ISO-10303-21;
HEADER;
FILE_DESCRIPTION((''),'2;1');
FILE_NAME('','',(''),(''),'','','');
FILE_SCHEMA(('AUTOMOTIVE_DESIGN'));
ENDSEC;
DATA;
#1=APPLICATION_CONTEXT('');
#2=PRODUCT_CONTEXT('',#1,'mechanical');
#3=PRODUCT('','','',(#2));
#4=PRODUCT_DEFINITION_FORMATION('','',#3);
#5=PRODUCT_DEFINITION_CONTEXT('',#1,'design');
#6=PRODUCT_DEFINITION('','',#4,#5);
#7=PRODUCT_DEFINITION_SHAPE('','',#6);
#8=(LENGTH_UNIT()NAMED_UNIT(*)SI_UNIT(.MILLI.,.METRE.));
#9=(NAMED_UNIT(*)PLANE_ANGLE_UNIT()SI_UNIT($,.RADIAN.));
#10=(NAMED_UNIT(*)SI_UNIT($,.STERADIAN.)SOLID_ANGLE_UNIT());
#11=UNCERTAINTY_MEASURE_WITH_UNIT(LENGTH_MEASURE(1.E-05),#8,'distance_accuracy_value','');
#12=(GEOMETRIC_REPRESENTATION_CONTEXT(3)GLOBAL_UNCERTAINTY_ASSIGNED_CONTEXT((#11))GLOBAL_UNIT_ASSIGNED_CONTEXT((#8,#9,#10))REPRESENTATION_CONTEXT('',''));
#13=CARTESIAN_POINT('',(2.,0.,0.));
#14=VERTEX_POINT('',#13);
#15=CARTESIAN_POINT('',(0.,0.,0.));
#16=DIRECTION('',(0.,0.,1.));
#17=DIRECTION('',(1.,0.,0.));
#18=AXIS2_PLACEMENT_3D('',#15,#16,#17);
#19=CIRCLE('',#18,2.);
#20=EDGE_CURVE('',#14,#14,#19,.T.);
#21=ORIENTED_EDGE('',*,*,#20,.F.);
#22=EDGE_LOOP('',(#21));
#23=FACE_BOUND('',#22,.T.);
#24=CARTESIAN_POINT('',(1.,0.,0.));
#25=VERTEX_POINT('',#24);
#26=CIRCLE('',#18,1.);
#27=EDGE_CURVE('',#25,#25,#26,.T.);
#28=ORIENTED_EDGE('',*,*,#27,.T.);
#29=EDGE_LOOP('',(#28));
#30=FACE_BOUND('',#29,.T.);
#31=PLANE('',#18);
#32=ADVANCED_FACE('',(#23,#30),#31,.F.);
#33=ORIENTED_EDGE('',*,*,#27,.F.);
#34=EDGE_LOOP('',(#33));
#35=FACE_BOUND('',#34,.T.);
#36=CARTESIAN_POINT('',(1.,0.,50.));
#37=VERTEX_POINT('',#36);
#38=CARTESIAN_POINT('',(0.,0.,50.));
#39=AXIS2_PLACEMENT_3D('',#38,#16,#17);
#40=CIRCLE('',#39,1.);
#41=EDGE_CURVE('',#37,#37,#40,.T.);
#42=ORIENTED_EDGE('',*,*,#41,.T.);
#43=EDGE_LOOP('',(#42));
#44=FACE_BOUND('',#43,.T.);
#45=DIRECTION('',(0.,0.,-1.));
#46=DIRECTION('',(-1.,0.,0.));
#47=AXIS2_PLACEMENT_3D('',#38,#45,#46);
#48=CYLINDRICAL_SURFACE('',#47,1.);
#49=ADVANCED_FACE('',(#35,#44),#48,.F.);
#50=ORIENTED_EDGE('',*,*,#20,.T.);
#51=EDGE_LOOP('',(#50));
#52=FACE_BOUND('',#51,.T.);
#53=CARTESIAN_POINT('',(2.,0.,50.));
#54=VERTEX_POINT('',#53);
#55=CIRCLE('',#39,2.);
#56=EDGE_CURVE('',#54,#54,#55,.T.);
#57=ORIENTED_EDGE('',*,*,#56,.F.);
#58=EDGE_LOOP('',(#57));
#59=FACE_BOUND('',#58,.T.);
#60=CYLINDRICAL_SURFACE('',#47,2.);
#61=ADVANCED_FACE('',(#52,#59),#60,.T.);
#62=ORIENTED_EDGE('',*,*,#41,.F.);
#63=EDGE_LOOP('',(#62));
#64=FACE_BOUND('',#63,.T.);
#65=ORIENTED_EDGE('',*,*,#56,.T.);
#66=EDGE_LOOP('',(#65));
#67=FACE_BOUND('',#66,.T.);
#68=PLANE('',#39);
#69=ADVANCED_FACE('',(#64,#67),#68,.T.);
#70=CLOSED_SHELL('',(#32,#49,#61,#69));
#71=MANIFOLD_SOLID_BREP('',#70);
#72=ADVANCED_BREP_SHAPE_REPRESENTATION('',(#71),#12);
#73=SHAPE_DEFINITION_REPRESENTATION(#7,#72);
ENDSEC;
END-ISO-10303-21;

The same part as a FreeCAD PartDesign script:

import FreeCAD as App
import Part
import Sketcher
Q = App.Units.Quantity

doc = App.newDocument("Part")
body = doc.addObject("PartDesign::Body", "Body")

# Sketch on XY plane
sketch1 = body.newObject("Sketcher::SketchObject", "Sketch")
sketch1.AttachmentSupport = (doc.getObject("XY_Plane"), [""])
sketch1.MapMode = "FlatFace"
sketch1.addGeometry(Part.Circle(App.Vector(0, 0, 0), App.Vector(0, 0, 1), 2), False)
sketch1.addGeometry(Part.Circle(App.Vector(0, 0, 0), App.Vector(0, 0, 1), 1), False)
sketch1.addConstraint(Sketcher.Constraint("Coincident", 0, 3, -1, 1))
sketch1.addConstraint(Sketcher.Constraint("Coincident", 1, 3, -1, 1))
sketch1.addConstraint(Sketcher.Constraint("Diameter", 0, Q("4 mm")))
sketch1.addConstraint(Sketcher.Constraint("Diameter", 1, Q("2 mm")))
pad1 = body.newObject("PartDesign::Pad", "Pad")
pad1.Profile = sketch1
pad1.Length = 50

doc.recompute()
